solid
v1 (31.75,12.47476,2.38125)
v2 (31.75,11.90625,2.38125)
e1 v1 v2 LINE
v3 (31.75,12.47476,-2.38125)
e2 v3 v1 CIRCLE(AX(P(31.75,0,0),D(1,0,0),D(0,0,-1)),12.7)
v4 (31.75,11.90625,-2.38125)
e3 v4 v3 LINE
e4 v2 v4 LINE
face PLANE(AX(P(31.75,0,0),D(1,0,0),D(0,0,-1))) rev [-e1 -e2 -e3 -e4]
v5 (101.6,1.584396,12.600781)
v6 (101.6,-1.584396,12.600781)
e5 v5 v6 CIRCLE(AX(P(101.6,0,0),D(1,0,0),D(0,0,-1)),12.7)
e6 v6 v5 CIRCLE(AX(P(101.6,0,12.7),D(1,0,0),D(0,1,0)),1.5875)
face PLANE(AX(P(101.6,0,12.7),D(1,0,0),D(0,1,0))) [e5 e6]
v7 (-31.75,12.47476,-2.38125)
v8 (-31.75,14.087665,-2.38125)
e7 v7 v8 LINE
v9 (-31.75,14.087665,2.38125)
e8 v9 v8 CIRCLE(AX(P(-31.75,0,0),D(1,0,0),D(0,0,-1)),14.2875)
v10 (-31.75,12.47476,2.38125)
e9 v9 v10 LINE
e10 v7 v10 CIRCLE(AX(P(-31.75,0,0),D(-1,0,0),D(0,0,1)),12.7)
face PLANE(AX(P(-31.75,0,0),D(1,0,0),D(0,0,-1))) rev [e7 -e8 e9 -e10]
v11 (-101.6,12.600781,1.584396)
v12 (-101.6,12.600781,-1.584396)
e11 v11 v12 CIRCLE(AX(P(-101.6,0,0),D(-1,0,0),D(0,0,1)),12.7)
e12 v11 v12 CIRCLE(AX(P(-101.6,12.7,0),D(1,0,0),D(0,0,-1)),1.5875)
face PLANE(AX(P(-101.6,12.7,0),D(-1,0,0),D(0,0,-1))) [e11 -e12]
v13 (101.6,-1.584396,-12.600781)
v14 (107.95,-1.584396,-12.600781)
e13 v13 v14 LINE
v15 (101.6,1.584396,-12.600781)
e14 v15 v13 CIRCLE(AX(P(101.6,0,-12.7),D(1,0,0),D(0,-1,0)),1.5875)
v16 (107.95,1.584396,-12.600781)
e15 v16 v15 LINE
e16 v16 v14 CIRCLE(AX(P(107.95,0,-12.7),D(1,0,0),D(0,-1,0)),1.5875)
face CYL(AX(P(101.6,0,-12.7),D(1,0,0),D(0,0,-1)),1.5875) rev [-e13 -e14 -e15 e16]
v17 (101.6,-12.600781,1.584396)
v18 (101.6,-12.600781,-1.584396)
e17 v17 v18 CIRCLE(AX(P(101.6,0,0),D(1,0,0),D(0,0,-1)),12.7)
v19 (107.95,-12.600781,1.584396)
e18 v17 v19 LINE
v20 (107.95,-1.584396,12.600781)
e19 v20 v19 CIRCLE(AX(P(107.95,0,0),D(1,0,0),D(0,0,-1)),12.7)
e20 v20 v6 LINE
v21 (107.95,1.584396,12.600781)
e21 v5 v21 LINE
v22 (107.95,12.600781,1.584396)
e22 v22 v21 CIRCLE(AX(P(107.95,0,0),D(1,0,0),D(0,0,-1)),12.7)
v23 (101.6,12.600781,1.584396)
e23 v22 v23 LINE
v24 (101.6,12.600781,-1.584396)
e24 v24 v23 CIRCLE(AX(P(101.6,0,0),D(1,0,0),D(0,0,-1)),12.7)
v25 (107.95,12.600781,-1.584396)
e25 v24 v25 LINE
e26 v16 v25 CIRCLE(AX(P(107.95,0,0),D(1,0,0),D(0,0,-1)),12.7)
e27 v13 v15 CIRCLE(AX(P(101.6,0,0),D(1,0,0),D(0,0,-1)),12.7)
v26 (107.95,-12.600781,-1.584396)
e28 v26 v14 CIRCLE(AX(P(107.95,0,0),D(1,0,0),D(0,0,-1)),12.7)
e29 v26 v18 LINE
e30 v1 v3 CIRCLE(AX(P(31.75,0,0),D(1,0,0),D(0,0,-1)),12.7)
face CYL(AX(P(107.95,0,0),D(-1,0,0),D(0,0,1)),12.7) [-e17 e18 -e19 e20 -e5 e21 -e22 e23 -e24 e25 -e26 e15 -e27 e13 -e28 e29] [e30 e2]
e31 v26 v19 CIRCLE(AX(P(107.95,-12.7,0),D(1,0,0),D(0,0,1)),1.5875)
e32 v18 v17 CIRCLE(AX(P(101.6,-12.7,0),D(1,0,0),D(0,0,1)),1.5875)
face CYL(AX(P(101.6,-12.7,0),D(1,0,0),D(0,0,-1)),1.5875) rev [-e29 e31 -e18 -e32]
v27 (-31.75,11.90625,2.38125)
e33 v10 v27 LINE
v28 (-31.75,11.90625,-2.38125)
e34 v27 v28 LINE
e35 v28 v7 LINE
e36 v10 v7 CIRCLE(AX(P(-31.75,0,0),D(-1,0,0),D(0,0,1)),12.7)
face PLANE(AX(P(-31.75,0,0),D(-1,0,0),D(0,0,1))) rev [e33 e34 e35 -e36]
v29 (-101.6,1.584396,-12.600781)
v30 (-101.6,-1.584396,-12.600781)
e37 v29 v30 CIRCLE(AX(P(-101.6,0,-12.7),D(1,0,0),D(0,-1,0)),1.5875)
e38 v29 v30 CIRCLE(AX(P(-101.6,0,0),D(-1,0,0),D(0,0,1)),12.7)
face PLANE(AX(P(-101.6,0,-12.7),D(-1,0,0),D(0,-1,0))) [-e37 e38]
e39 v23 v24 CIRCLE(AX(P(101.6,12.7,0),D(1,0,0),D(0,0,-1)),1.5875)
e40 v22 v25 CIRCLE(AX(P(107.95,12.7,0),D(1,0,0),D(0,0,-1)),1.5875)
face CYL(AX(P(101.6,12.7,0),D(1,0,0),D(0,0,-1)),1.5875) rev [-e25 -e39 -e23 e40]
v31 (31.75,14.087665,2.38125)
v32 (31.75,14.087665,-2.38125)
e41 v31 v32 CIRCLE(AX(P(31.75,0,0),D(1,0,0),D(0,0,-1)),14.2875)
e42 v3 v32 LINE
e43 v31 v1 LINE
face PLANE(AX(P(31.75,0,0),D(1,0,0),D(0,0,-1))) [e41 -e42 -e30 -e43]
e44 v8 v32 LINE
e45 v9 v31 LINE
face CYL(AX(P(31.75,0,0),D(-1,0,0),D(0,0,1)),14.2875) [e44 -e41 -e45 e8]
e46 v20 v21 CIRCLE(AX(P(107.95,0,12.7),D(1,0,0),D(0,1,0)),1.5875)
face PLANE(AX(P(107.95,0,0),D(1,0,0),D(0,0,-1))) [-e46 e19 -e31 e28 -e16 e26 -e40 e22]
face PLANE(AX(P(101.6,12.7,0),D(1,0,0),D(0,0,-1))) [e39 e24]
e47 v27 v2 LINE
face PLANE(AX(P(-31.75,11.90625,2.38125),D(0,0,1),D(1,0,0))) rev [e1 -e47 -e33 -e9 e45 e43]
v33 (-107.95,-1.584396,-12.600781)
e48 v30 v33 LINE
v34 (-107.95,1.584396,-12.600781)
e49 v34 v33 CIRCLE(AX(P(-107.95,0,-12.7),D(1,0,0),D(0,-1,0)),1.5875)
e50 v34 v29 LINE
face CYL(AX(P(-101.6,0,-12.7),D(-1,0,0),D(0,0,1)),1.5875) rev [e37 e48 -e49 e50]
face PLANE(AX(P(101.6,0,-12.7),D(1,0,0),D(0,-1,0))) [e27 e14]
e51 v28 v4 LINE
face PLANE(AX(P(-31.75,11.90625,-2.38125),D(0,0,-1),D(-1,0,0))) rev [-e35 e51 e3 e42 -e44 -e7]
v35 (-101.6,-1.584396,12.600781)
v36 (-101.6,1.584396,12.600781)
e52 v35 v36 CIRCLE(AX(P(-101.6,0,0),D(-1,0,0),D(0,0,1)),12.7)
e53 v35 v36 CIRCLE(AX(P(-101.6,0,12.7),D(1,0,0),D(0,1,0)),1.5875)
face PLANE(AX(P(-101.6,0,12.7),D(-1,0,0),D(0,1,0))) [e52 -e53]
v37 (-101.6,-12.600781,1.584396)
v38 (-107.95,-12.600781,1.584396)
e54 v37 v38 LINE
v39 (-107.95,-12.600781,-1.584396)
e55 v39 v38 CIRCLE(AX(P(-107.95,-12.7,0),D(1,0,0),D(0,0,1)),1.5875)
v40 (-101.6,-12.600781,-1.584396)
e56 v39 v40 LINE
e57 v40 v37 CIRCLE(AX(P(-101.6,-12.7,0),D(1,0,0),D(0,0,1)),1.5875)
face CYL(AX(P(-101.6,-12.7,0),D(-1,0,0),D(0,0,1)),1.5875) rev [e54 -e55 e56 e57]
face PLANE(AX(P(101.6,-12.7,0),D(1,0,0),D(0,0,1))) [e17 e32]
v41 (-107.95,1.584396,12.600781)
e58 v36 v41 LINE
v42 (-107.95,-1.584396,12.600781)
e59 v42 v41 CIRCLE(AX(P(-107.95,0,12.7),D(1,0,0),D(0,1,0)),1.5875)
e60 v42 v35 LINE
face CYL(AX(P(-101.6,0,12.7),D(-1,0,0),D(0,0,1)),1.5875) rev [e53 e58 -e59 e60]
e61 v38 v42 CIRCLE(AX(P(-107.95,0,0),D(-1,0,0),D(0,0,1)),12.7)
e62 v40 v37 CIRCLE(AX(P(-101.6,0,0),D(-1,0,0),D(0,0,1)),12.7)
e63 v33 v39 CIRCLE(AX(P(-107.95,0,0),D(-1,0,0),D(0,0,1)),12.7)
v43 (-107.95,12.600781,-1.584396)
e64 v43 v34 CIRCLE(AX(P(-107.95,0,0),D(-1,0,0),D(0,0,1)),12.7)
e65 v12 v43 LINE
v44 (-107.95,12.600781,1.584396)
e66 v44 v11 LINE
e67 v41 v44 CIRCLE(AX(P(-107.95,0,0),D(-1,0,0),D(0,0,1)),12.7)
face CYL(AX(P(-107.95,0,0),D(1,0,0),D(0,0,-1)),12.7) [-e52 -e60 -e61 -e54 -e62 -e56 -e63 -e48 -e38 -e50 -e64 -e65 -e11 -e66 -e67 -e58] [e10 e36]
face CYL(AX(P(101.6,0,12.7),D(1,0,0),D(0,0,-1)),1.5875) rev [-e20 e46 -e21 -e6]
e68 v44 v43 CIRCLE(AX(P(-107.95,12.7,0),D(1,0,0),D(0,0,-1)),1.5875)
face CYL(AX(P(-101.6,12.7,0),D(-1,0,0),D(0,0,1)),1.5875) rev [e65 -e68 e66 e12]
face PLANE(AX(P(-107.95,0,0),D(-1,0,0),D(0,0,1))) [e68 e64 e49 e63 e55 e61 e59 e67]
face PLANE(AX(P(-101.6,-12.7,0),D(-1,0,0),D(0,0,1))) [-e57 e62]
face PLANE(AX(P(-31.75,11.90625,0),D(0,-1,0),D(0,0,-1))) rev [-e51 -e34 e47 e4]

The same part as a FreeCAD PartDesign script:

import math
import FreeCAD as App
import Part
import Sketcher
from FreeCAD import Vector
Q = App.Units.Quantity

doc = App.newDocument("Part")
body = doc.addObject("PartDesign::Body", "Body")

# Sketch on YZ plane
sketch1 = body.newObject("Sketcher::SketchObject", "Sketch")
sketch1.AttachmentSupport = (doc.getObject("YZ_Plane"), [""])
sketch1.MapMode = "FlatFace"
sketch1.addGeometry(Part.Circle(Vector(0, 0, 0), Vector(0, 0, 1), 14.2875), False)
sketch1.addConstraint([
    Sketcher.Constraint("Coincident", 0, 3, -1, 1),
    Sketcher.Constraint("Diameter", 0, Q("1.125 in")),
])
pad1 = body.newObject("PartDesign::Pad", "Pad")
pad1.Profile = sketch1
pad1.Length = Q("2.5 in")
pad1.Midplane = True

# Sketch on YZ plane
sketch2 = body.newObject("Sketcher::SketchObject", "Sketch001")
sketch2.AttachmentSupport = (doc.getObject("YZ_Plane"), [""])
sketch2.MapMode = "FlatFace"
sketch2.AttachmentOffset = App.Placement(Vector(0, 0, 1.25 * 25.4), App.Rotation())
sketch2.addGeometry([
    Part.LineSegment(Vector(11.90625, -2.38125, 0), Vector(14.087665, -2.38125, 0)),
    Part.ArcOfCircle(Part.Circle(Vector(0, 0, 0), Vector(0, 0, 1), 14.2875), math.radians(-9.594068), math.radians(9.594068)),
    Part.LineSegment(Vector(14.087665, 2.38125, 0), Vector(11.90625, 2.38125, 0)),
    Part.LineSegment(Vector(11.90625, 2.38125, 0), Vector(11.90625, -2.38125, 0)),
], False)
sketch2.addConstraint([
    Sketcher.Constraint("Coincident", 0, 2, 1, 1),
    Sketcher.Constraint("Coincident", 1, 2, 2, 1),
    Sketcher.Constraint("Coincident", 2, 2, 3, 1),
    Sketcher.Constraint("Coincident", 3, 2, 0, 1),
    Sketcher.Constraint("Horizontal", 0),
    Sketcher.Constraint("Horizontal", 2),
    Sketcher.Constraint("Vertical", 3),
    Sketcher.Constraint("Coincident", 1, 3, -1, 1),
    Sketcher.Constraint("Vertical", 0, 2, 1, 2),
    Sketcher.Constraint("Radius", 1, Q("0.5625 in")),
    Sketcher.Constraint("DistanceY", 3, 2, 3, 1, Q("0.1875 in")),
    Sketcher.Constraint("DistanceX", -1, 1, 2, 2, Q("0.46875 in")),
])
pocket1 = body.newObject("PartDesign::Pocket", "Pocket")
pocket1.Profile = sketch2
pocket1.Length = Q("2.5 in")

# Sketch on YZ plane
sketch3 = body.newObject("Sketcher::SketchObject", "Sketch002")
sketch3.AttachmentSupport = (doc.getObject("YZ_Plane"), [""])
sketch3.MapMode = "FlatFace"
sketch3.AttachmentOffset = App.Placement(Vector(0, 0, 1.25 * 25.4), App.Rotation())
sketch3.addGeometry(Part.Circle(Vector(0, 0, 0), Vector(0, 0, 1), 12.7), False)
sketch3.addConstraint([
    Sketcher.Constraint("Coincident", 0, 3, -1, 1),
    Sketcher.Constraint("Diameter", 0, Q("1 in")),
])
pad2 = body.newObject("PartDesign::Pad", "Pad001")
pad2.Profile = sketch3
pad2.Length = Q("3 in")

# Sketch on YZ plane
sketch4 = body.newObject("Sketcher::SketchObject", "Sketch003")
sketch4.AttachmentSupport = (doc.getObject("YZ_Plane"), [""])
sketch4.MapMode = "FlatFace"
sketch4.AttachmentOffset = App.Placement(Vector(0, 0, -1.25 * 25.4), App.Rotation())
sketch4.addGeometry(Part.Circle(Vector(0, 0, 0), Vector(0, 0, 1), 12.7), False)
sketch4.addConstraint([
    Sketcher.Constraint("Coincident", 0, 3, -1, 1),
    Sketcher.Constraint("Diameter", 0, Q("1 in")),
])
pad3 = body.newObject("PartDesign::Pad", "Pad002")
pad3.Profile = sketch4
pad3.Length = Q("3 in")
pad3.Reversed = True

# Sketch on YZ plane
sketch5 = body.newObject("Sketcher::SketchObject", "Sketch004")
sketch5.AttachmentSupport = (doc.getObject("YZ_Plane"), [""])
sketch5.MapMode = "FlatFace"
sketch5.AttachmentOffset = App.Placement(Vector(0, 0, 4.25 * 25.4), App.Rotation())
sketch5.addGeometry(Part.Circle(Vector(12.7, 0, 0), Vector(0, 0, 1), 1.5875), False)
sketch5.addConstraint([
    Sketcher.Constraint("PointOnObject", 0, 3, -1),
    Sketcher.Constraint("Diameter", 0, Q("0.125 in")),
    Sketcher.Constraint("DistanceX", -1, 1, 0, 3, Q("0.5 in")),
])
pocket2 = body.newObject("PartDesign::Pocket", "Pocket001")
pocket2.Profile = sketch5
pocket2.Length = Q("0.25 in")
doc.recompute()

polarpattern = body.newObject("PartDesign::PolarPattern", "PolarPattern")
polarpattern.Originals = [pocket2]
polarpattern.Axis = (doc.getObject("X_Axis"), [""])
polarpattern.Angle = 360
polarpattern.Occurrences = 4
body.Tip = polarpattern
doc.recompute()

mirrored = body.newObject("PartDesign::Mirrored", "Mirrored")
mirrored.Originals = [pocket2]
mirrored.MirrorPlane = (doc.getObject("YZ_Plane"), [""])
body.Tip = mirrored

# Sketch on YZ plane
sketch6 = body.newObject("Sketcher::SketchObject", "Sketch005")
sketch6.AttachmentSupport = (doc.getObject("YZ_Plane"), [""])
sketch6.MapMode = "FlatFace"
sketch6.AttachmentOffset = App.Placement(Vector(0, 0, -4.25 * 25.4), App.Rotation())
sketch6.addGeometry(Part.Circle(Vector(0, 12.7, 0), Vector(0, 0, 1), 1.5875), False)
sketch6.addConstraint([
    Sketcher.Constraint("PointOnObject", 0, 3, -2),
    Sketcher.Constraint("Diameter", 0, Q("0.125 in")),
    Sketcher.Constraint("DistanceY", -1, 1, 0, 3, Q("0.5 in")),
])
pocket3 = body.newObject("PartDesign::Pocket", "Pocket002")
pocket3.Profile = sketch6
pocket3.Length = Q("0.25 in")
pocket3.Reversed = True

# Sketch on YZ plane
sketch7 = body.newObject("Sketcher::SketchObject", "Sketch006")
sketch7.AttachmentSupport = (doc.getObject("YZ_Plane"), [""])
sketch7.MapMode = "FlatFace"
sketch7.AttachmentOffset = App.Placement(Vector(0, 0, -4.25 * 25.4), App.Rotation())
sketch7.addGeometry(Part.Circle(Vector(-12.7, 0, 0), Vector(0, 0, 1), 1.5875), False)
sketch7.addConstraint([
    Sketcher.Constraint("PointOnObject", 0, 3, -1),
    Sketcher.Constraint("Diameter", 0, Q("0.125 in")),
    Sketcher.Constraint("DistanceX", 0, 3, -1, 1, Q("0.5 in")),
])
pocket4 = body.newObject("PartDesign::Pocket", "Pocket003")
pocket4.Profile = sketch7
pocket4.Length = Q("0.25 in")
pocket4.Reversed = True

# Sketch on YZ plane
sketch8 = body.newObject("Sketcher::SketchObject", "Sketch007")
sketch8.AttachmentSupport = (doc.getObject("YZ_Plane"), [""])
sketch8.MapMode = "FlatFace"
sketch8.AttachmentOffset = App.Placement(Vector(0, 0, -4.25 * 25.4), App.Rotation())
sketch8.addGeometry(Part.Circle(Vector(0, -12.7, 0), Vector(0, 0, 1), 1.5875), False)
sketch8.addConstraint([
    Sketcher.Constraint("PointOnObject", 0, 3, -2),
    Sketcher.Constraint("Diameter", 0, Q("0.125 in")),
    Sketcher.Constraint("DistanceY", 0, 3, -1, 1, Q("0.5 in")),
])
pocket5 = body.newObject("PartDesign::Pocket", "Pocket004")
pocket5.Profile = sketch8
pocket5.Length = Q("0.25 in")
pocket5.Reversed = True

doc.recompute()
